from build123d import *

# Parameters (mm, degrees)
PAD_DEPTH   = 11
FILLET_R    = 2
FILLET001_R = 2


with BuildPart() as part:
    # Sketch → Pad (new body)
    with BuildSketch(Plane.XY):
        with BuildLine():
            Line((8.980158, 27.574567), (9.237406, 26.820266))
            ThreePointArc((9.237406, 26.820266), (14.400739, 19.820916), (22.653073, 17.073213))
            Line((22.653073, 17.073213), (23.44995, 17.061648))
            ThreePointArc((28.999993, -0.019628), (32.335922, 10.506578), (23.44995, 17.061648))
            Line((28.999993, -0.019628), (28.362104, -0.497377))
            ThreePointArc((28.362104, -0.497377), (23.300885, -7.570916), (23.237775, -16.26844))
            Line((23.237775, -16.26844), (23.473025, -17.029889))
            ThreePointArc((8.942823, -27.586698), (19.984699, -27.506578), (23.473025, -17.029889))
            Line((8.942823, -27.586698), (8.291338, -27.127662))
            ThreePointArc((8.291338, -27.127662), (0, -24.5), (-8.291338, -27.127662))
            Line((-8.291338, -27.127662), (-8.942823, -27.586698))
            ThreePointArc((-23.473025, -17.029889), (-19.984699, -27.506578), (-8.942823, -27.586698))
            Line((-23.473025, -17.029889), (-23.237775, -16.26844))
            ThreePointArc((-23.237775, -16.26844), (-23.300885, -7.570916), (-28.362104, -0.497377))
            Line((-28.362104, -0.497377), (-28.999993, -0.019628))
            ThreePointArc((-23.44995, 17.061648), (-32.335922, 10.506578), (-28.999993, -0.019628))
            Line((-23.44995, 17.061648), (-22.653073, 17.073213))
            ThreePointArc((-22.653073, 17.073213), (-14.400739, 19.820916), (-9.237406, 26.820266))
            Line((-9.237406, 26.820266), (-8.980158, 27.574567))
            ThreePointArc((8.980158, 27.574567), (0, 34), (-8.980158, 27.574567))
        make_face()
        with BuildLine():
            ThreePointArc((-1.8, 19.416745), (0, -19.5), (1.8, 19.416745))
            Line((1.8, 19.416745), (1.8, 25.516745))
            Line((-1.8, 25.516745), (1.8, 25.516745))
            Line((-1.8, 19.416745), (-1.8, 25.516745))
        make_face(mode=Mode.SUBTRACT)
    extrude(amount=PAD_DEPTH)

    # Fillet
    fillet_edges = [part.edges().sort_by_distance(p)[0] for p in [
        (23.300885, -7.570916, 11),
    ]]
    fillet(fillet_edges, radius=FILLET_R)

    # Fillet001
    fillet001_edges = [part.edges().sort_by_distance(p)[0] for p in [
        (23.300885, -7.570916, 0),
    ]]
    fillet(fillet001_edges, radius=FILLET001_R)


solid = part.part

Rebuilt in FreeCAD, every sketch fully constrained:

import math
import FreeCAD as App
import Part
import Sketcher
Q = App.Units.Quantity


def edges_at(feature, points):
    """Names of the edges that pass closest to the given points."""
    edges = feature.Shape.Edges
    near = lambda p: min(range(len(edges)), key=lambda i: edges[i].distToShape(Part.Vertex(*p))[0])
    return sorted({f"Edge{near(p) + 1}" for p in points})

doc = App.newDocument("Part")
body = doc.addObject("PartDesign::Body", "Body")

sketch1 = body.newObject("Sketcher::SketchObject", "Sketch")
sketch1.AttachmentSupport = (doc.getObject("XY_Plane"), [""])
sketch1.MapMode = "FlatFace"
sketch1.addGeometry([
    Part.LineSegment(App.Vector(9.2, 26.8, 0), App.Vector(9, 27.6, 0)),
    Part.ArcOfCircle(Part.Circle(App.Vector(0, 24.5, 0), App.Vector(0, 0, 1), 9.5), math.radians(19), math.radians(161)),
    Part.LineSegment(App.Vector(-9, 27.6, 0), App.Vector(-9.2, 26.8, 0)),
    Part.ArcOfCircle(Part.Circle(App.Vector(-22.9, 31.5, 0), App.Vector(0, 0, 1), 14.4), math.radians(-89), math.radians(-19)),
    Part.LineSegment(App.Vector(-22.7, 17.1, 0), App.Vector(-23.4, 17.1, 0)),
    Part.ArcOfCircle(Part.Circle(App.Vector(-23.3, 7.6, 0), App.Vector(0, 0, 1), 9.5), math.radians(91), math.radians(233)),
    Part.LineSegment(App.Vector(-29, 0, 0), App.Vector(-28.4, -0.5, 0)),
    Part.ArcOfCircle(Part.Circle(App.Vector(-37, -12, 0), App.Vector(0, 0, 1), 14.4), math.radians(-17), math.radians(53)),
    Part.LineSegment(App.Vector(-23.2, -16.3, 0), App.Vector(-23.5, -17, 0)),
    Part.ArcOfCircle(Part.Circle(App.Vector(-14.4, -19.8, 0), App.Vector(0, 0, 1), 9.5), math.radians(163), math.radians(305)),
    Part.LineSegment(App.Vector(-8.9, -27.6, 0), App.Vector(-8.3, -27.1, 0)),
    Part.ArcOfCircle(Part.Circle(App.Vector(0, -38.9, 0), App.Vector(0, 0, 1), 14.4), math.radians(55), math.radians(125)),
    Part.LineSegment(App.Vector(8.3, -27.1, 0), App.Vector(8.9, -27.6, 0)),
    Part.ArcOfCircle(Part.Circle(App.Vector(14.4, -19.8, 0), App.Vector(0, 0, 1), 9.5), math.radians(-125), math.radians(17)),
    Part.LineSegment(App.Vector(23.5, -17, 0), App.Vector(23.2, -16.3, 0)),
    Part.ArcOfCircle(Part.Circle(App.Vector(37, -12, 0), App.Vector(0, 0, 1), 14.4), math.radians(127), math.radians(197)),
    Part.LineSegment(App.Vector(28.4, -0.5, 0), App.Vector(29, 0, 0)),
    Part.ArcOfCircle(Part.Circle(App.Vector(23.3, 7.6, 0), App.Vector(0, 0, 1), 9.5), math.radians(-53), math.radians(89)),
    Part.LineSegment(App.Vector(23.4, 17.1, 0), App.Vector(22.7, 17.1, 0)),
    Part.ArcOfCircle(Part.Circle(App.Vector(22.9, 31.5, 0), App.Vector(0, 0, 1), 14.4), math.radians(-161), math.radians(-91)),
    Part.LineSegment(App.Vector(-1.8, 19.4, 0), App.Vector(-1.8, 25.5, 0)),
    Part.LineSegment(App.Vector(-1.8, 25.5, 0), App.Vector(1.8, 25.5, 0)),
    Part.LineSegment(App.Vector(1.8, 25.5, 0), App.Vector(1.8, 19.4, 0)),
    Part.ArcOfCircle(Part.Circle(App.Vector(0, 0, 0), App.Vector(0, 0, 1), 19.5), math.radians(95), math.radians(445)),
], False)
sketch1.addConstraint([
    Sketcher.Constraint("Tangent", 0, 2, 1, 1),
    Sketcher.Constraint("Tangent", 1, 2, 2, 1),
    Sketcher.Constraint("Tangent", 2, 2, 3, 2),
    Sketcher.Constraint("Tangent", 3, 1, 4, 1),
    Sketcher.Constraint("Tangent", 4, 2, 5, 1),
    Sketcher.Constraint("Tangent", 5, 2, 6, 1),
    Sketcher.Constraint("Tangent", 6, 2, 7, 2),
    Sketcher.Constraint("Tangent", 7, 1, 8, 1),
    Sketcher.Constraint("Tangent", 8, 2, 9, 1),
    Sketcher.Constraint("Tangent", 9, 2, 10, 1),
    Sketcher.Constraint("Tangent", 10, 2, 11, 2),
    Sketcher.Constraint("Tangent", 11, 1, 12, 1),
    Sketcher.Constraint("Tangent", 12, 2, 13, 1),
    Sketcher.Constraint("Tangent", 13, 2, 14, 1),
    Sketcher.Constraint("Tangent", 14, 2, 15, 2),
    Sketcher.Constraint("Tangent", 15, 1, 16, 1),
    Sketcher.Constraint("Tangent", 16, 2, 17, 1),
    Sketcher.Constraint("Tangent", 17, 2, 18, 1),
    Sketcher.Constraint("Tangent", 18, 2, 19, 2),
    Sketcher.Constraint("Tangent", 19, 1, 0, 1),
    Sketcher.Constraint("Coincident", 20, 2, 21, 1),
    Sketcher.Constraint("Coincident", 21, 2, 22, 1),
    Sketcher.Constraint("Coincident", 22, 2, 23, 2),
    Sketcher.Constraint("Coincident", 23, 1, 20, 1),
    Sketcher.Constraint("Vertical", 20),
    Sketcher.Constraint("Horizontal", 21),
    Sketcher.Constraint("Vertical", 22),
    Sketcher.Constraint("Coincident", 23, 3, -1, 1),
    Sketcher.Constraint("Equal", 1, 5),
    Sketcher.Constraint("Equal", 5, 9),
    Sketcher.Constraint("Equal", 3, 11),
    Sketcher.Constraint("Equal", 9, 13),
    Sketcher.Constraint("Equal", 7, 15),
    Sketcher.Constraint("Equal", 13, 17),
    Sketcher.Constraint("Equal", 11, 19),
    Sketcher.Constraint("Symmetric", 9, 3, 13, 3, -2),
    Sketcher.Constraint("Symmetric", 7, 3, 15, 3, -2),
    Sketcher.Constraint("Symmetric", 5, 3, 17, 3, -2),
    Sketcher.Constraint("Symmetric", 3, 3, 19, 3, -2),
    Sketcher.Constraint("PointOnObject", 1, 3, -2),
    Sketcher.Constraint("PointOnObject", 11, 3, -2),
    Sketcher.Constraint("Horizontal", 22, 2, 23, 1),
    Sketcher.Constraint("Equal", 2, 4),
    Sketcher.Constraint("Equal", 4, 6),
    Sketcher.Constraint("Equal", 6, 8),
    Sketcher.Constraint("Equal", 8, 10),
    Sketcher.Constraint("Radius", 23, Q("19.5 mm")),
    Sketcher.Constraint("DistanceX", 21, 1, 21, 2, Q("3.6 mm")),
    Sketcher.Constraint("DistanceY", 20, 1, 20, 2, Q("6.1 mm")),
    Sketcher.Constraint("Radius", 7, Q("14.3951 mm")),
    Sketcher.Constraint("Radius", 1, Q("9.488032 mm")),
    Sketcher.Constraint("DistanceX", 7, 1, 9, 3, Q("8.830002 mm")),
    Sketcher.Constraint("Radius", 3, Q("14.395097 mm")),
    Sketcher.Constraint("DistanceY", 9, 3, -1, 1, Q("19.830598 mm")),
    Sketcher.Constraint("DistanceY", 1, 3, 0, 2, Q("3.062599 mm")),
    Sketcher.Constraint("DistanceY", 2, 2, 1, 2, Q("0.754301 mm")),
    Sketcher.Constraint("DistanceY", 9, 2, 9, 3, Q("7.7561 mm")),
    Sketcher.Constraint("DistanceY", -1, 1, 1, 3, Q("24.511968 mm")),
])
pad1 = body.newObject("PartDesign::Pad", "Pad")
pad1.Profile = sketch1
pad1.Length = 11
doc.recompute()

fillet = body.newObject("PartDesign::Fillet", "Fillet")
fillet.Base = (pad1, edges_at(pad1, [(23.301, -7.571, 11)]))
fillet.Radius = 2
doc.recompute()

fillet2 = body.newObject("PartDesign::Fillet", "Fillet001")
fillet2.Base = (fillet, edges_at(fillet, [(23.301, -7.571, 0)]))
fillet2.Radius = 2

doc.recompute()
